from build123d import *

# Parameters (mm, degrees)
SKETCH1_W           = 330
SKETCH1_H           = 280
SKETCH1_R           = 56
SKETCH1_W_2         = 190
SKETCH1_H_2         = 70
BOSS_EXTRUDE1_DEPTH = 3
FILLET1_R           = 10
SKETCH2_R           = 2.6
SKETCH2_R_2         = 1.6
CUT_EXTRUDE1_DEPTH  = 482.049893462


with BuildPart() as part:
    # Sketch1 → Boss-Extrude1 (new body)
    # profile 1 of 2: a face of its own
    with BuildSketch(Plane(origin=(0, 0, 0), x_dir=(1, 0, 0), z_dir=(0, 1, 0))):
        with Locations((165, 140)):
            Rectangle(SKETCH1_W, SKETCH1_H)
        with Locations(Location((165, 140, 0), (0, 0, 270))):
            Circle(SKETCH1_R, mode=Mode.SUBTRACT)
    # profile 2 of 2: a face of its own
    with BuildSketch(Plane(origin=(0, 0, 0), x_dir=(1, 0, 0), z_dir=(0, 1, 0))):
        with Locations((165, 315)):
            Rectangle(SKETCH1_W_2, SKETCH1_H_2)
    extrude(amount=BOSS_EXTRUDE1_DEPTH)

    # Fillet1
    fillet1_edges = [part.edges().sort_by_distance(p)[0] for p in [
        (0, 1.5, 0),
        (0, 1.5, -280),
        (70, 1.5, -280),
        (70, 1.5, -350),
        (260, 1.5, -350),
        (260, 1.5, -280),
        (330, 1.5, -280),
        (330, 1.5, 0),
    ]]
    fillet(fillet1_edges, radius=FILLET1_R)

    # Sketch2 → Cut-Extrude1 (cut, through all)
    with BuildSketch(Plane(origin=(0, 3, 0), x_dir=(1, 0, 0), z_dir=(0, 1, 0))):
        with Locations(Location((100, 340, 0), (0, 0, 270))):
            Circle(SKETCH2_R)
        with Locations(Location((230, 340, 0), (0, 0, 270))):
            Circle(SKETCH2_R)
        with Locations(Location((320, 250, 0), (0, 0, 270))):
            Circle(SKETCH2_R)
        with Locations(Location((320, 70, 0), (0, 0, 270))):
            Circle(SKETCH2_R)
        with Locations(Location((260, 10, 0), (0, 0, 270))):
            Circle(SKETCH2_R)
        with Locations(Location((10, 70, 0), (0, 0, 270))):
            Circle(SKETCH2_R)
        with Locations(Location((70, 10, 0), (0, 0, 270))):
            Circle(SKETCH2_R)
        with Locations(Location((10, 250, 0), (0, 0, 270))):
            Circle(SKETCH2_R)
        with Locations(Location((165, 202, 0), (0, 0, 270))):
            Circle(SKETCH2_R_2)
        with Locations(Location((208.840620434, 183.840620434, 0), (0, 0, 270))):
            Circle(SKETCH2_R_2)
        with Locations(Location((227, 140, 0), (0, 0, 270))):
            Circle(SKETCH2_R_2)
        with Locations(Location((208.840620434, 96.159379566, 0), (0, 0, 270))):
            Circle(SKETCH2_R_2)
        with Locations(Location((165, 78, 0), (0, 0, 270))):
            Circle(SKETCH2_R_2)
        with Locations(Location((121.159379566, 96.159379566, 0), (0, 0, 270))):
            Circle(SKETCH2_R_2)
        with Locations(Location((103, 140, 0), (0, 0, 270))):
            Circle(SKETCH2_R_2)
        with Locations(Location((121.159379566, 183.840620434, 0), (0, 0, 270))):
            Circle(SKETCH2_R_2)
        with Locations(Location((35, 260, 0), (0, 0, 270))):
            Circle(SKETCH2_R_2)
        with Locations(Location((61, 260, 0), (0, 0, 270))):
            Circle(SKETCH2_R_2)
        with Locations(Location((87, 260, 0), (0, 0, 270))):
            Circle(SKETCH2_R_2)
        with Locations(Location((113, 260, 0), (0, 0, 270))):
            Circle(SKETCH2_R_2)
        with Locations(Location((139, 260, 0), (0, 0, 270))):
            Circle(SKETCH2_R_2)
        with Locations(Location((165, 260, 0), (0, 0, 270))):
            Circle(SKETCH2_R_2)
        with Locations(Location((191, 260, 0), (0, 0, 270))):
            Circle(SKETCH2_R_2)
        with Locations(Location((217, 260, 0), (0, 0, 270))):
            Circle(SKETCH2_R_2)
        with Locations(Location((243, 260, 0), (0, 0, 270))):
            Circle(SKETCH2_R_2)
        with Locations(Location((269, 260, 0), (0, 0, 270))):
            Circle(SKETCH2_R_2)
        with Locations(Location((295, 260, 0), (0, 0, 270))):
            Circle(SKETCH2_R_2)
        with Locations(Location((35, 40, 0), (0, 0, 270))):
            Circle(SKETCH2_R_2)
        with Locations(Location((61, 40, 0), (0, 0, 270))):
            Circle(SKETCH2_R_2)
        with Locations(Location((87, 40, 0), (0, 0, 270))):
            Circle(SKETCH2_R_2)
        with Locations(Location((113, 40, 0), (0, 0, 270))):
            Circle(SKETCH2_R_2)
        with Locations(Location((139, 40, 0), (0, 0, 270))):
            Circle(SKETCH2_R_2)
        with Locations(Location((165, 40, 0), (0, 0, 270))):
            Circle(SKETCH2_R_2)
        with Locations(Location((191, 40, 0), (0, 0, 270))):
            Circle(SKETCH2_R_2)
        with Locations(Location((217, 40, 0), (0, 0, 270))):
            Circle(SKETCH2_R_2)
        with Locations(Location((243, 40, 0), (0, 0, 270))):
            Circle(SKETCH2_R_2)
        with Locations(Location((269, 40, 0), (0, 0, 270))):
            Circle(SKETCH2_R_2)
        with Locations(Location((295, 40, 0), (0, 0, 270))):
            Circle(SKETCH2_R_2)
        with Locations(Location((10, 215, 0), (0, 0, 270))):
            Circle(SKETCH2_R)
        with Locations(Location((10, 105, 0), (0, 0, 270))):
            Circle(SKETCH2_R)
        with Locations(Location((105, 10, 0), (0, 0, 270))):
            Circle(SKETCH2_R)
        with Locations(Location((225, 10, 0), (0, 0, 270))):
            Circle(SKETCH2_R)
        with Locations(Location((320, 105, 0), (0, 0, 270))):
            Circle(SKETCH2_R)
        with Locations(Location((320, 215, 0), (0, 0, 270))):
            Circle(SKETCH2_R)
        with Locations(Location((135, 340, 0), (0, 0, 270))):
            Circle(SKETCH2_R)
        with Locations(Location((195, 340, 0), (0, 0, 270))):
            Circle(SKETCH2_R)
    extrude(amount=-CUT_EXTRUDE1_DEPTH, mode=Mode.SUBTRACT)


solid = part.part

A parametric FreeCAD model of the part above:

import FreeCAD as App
import Part
import Sketcher
from FreeCAD import Vector
Q = App.Units.Quantity


def edges_at(feature, points):
    """Names of the edges that pass closest to the given points."""
    edges = feature.Shape.Edges
    near = lambda p: min(range(len(edges)), key=lambda i: edges[i].distToShape(Part.Vertex(*p))[0])
    return sorted({f"Edge{near(p) + 1}" for p in points})

doc = App.newDocument("Part")
params = doc.addObject("Spreadsheet::Sheet", "Params")
for row, (alias, value) in enumerate([
    ("sketch1_diameter", "112 mm"),
    ("sketch1_width", "330 mm"),
    ("sketch1_width2", "70 mm"),
    ("sketch1_height", "280 mm"),
    ("pad1_length", "3 mm"),
    ("fillet_radius", "10 mm"),
    ("sketch2_diameter", "5.2 mm"),
    ("sketch2_diameter2", "3.2 mm"),
], start=1):
    params.set(f"A{row}", alias)
    params.set(f"B{row}", "=" + value)
    params.setAlias(f"B{row}", alias)

body = doc.addObject("PartDesign::Body", "Body")

# Sketch on XZ plane
sketch1 = body.newObject("Sketcher::SketchObject", "Sketch")
sketch1.AttachmentSupport = (doc.getObject("XZ_Plane"), [""])
sketch1.MapMode = "FlatFace"
sketch1.addGeometry([
    Part.LineSegment(Vector(0, -280, 0), Vector(0, 0, 0)),  # 0
    Part.LineSegment(Vector(0, 0, 0), Vector(330, 0, 0)),  # 1
    Part.LineSegment(Vector(330, 0, 0), Vector(330, -280, 0)),  # 2
    Part.LineSegment(Vector(330, -280, 0), Vector(260, -280, 0)),  # 3
    Part.LineSegment(Vector(260, -280, 0), Vector(260, -350, 0)),  # 4
    Part.LineSegment(Vector(260, -350, 0), Vector(70, -350, 0)),  # 5
    Part.LineSegment(Vector(70, -350, 0), Vector(70, -280, 0)),  # 6
    Part.LineSegment(Vector(70, -280, 0), Vector(0, -280, 0)),  # 7
    Part.Circle(Vector(165, -140, 0), Vector(0, 0, 1), 56),  # 8
], False)
sketch1.addConstraint([
    Sketcher.Constraint("Coincident", 0, 2, 1, 1),
    Sketcher.Constraint("Coincident", 1, 2, 2, 1),
    Sketcher.Constraint("Coincident", 2, 2, 3, 1),
    Sketcher.Constraint("Coincident", 3, 2, 4, 1),
    Sketcher.Constraint("Coincident", 4, 2, 5, 1),
    Sketcher.Constraint("Coincident", 5, 2, 6, 1),
    Sketcher.Constraint("Coincident", 6, 2, 7, 1),
    Sketcher.Constraint("Coincident", 7, 2, 0, 1),
    Sketcher.Constraint("Vertical", 0),
    Sketcher.Constraint("Horizontal", 1),
    Sketcher.Constraint("Vertical", 2),
    Sketcher.Constraint("Horizontal", 3),
    Sketcher.Constraint("Vertical", 4),
    Sketcher.Constraint("Horizontal", 5),
    Sketcher.Constraint("Vertical", 6),
    Sketcher.Constraint("Horizontal", 7),
    Sketcher.Constraint("Coincident", 0, 2, -1, 1),
    Sketcher.Constraint("Horizontal", 3, 2, 6, 2),
    Sketcher.Constraint("Equal", 3, 7),
    Sketcher.Constraint("Equal", 7, 4),
    Sketcher.Constraint("Diameter", 8, Q("112 mm")),
    Sketcher.Constraint("DistanceX", 1, 1, 1, 2, Q("330 mm")),
    Sketcher.Constraint("DistanceX", 3, 2, 3, 1, Q("70 mm")),
    Sketcher.Constraint("DistanceY", 0, 1, 0, 2, Q("280 mm")),
    Sketcher.Constraint("DistanceX", -1, 1, 8, 3, Q("165 mm")),
    Sketcher.Constraint("DistanceY", 8, 3, -1, 1, Q("140 mm")),
])
sketch1.setExpression("Constraints[20]", "Params.sketch1_diameter")
sketch1.setExpression("Constraints[21]", "Params.sketch1_width")
sketch1.setExpression("Constraints[22]", "Params.sketch1_width2")
sketch1.setExpression("Constraints[23]", "Params.sketch1_height")
pad1 = body.newObject("PartDesign::Pad", "Pad")
pad1.Profile = sketch1
pad1.setExpression("Length", "Params.pad1_length")
pad1.Reversed = True
doc.recompute()

fillet = body.newObject("PartDesign::Fillet", "Fillet")
fillet.Base = (pad1, edges_at(pad1, [
    (0, 1.5, 0),
    (0, 1.5, -280),
    (70, 1.5, -280),
    (70, 1.5, -350),
    (260, 1.5, -350),
    (260, 1.5, -280),
    (330, 1.5, -280),
    (330, 1.5, 0),
]))
fillet.setExpression("Radius", "Params.fillet_radius")

# Sketch on XZ plane
sketch2 = body.newObject("Sketcher::SketchObject", "Sketch001")
sketch2.AttachmentSupport = (doc.getObject("XZ_Plane"), [""])
sketch2.MapMode = "FlatFace"
sketch2.AttachmentOffset = App.Placement(Vector(0, 0, -3), App.Rotation())
sketch2.addGeometry([
    Part.Circle(Vector(100, -340, 0), Vector(0, 0, 1), 2.6),  # 0
    Part.Circle(Vector(230, -340, 0), Vector(0, 0, 1), 2.6),  # 1
    Part.Circle(Vector(320, -250, 0), Vector(0, 0, 1), 2.6),  # 2
    Part.Circle(Vector(320, -70, 0), Vector(0, 0, 1), 2.6),  # 3
    Part.Circle(Vector(260, -10, 0), Vector(0, 0, 1), 2.6),  # 4
    Part.Circle(Vector(10, -70, 0), Vector(0, 0, 1), 2.6),  # 5
    Part.Circle(Vector(70, -10, 0), Vector(0, 0, 1), 2.6),  # 6
    Part.Circle(Vector(10, -250, 0), Vector(0, 0, 1), 2.6),  # 7
    Part.Circle(Vector(165, -202, 0), Vector(0, 0, 1), 1.6),  # 8
    Part.Circle(Vector(208.8, -183.8, 0), Vector(0, 0, 1), 1.6),  # 9
    Part.Circle(Vector(227, -140, 0), Vector(0, 0, 1), 1.6),  # 10
    Part.Circle(Vector(208.8, -96.2, 0), Vector(0, 0, 1), 1.6),  # 11
    Part.Circle(Vector(165, -78, 0), Vector(0, 0, 1), 1.6),  # 12
    Part.Circle(Vector(121.2, -96.2, 0), Vector(0, 0, 1), 1.6),  # 13
    Part.Circle(Vector(103, -140, 0), Vector(0, 0, 1), 1.6),  # 14
    Part.Circle(Vector(121.2, -183.8, 0), Vector(0, 0, 1), 1.6),  # 15
    Part.Circle(Vector(35, -260, 0), Vector(0, 0, 1), 1.6),  # 16
    Part.Circle(Vector(61, -260, 0), Vector(0, 0, 1), 1.6),  # 17
    Part.Circle(Vector(87, -260, 0), Vector(0, 0, 1), 1.6),  # 18
    Part.Circle(Vector(113, -260, 0), Vector(0, 0, 1), 1.6),  # 19
    Part.Circle(Vector(139, -260, 0), Vector(0, 0, 1), 1.6),  # 20
    Part.Circle(Vector(165, -260, 0), Vector(0, 0, 1), 1.6),  # 21
    Part.Circle(Vector(191, -260, 0), Vector(0, 0, 1), 1.6),  # 22
    Part.Circle(Vector(217, -260, 0), Vector(0, 0, 1), 1.6),  # 23
    Part.Circle(Vector(243, -260, 0), Vector(0, 0, 1), 1.6),  # 24
    Part.Circle(Vector(269, -260, 0), Vector(0, 0, 1), 1.6),  # 25
    Part.Circle(Vector(295, -260, 0), Vector(0, 0, 1), 1.6),  # 26
    Part.Circle(Vector(35, -40, 0), Vector(0, 0, 1), 1.6),  # 27
    Part.Circle(Vector(61, -40, 0), Vector(0, 0, 1), 1.6),  # 28
    Part.Circle(Vector(87, -40, 0), Vector(0, 0, 1), 1.6),  # 29
    Part.Circle(Vector(113, -40, 0), Vector(0, 0, 1), 1.6),  # 30
    Part.Circle(Vector(139, -40, 0), Vector(0, 0, 1), 1.6),  # 31
    Part.Circle(Vector(165, -40, 0), Vector(0, 0, 1), 1.6),  # 32
    Part.Circle(Vector(191, -40, 0), Vector(0, 0, 1), 1.6),  # 33
    Part.Circle(Vector(217, -40, 0), Vector(0, 0, 1), 1.6),  # 34
    Part.Circle(Vector(243, -40, 0), Vector(0, 0, 1), 1.6),  # 35
    Part.Circle(Vector(269, -40, 0), Vector(0, 0, 1), 1.6),  # 36
    Part.Circle(Vector(295, -40, 0), Vector(0, 0, 1), 1.6),  # 37
    Part.Circle(Vector(10, -215, 0), Vector(0, 0, 1), 2.6),  # 38
    Part.Circle(Vector(10, -105, 0), Vector(0, 0, 1), 2.6),  # 39
    Part.Circle(Vector(105, -10, 0), Vector(0, 0, 1), 2.6),  # 40
    Part.Circle(Vector(225, -10, 0), Vector(0, 0, 1), 2.6),  # 41
    Part.Circle(Vector(320, -105, 0), Vector(0, 0, 1), 2.6),  # 42
    Part.Circle(Vector(320, -215, 0), Vector(0, 0, 1), 2.6),  # 43
    Part.Circle(Vector(135, -340, 0), Vector(0, 0, 1), 2.6),  # 44
    Part.Circle(Vector(195, -340, 0), Vector(0, 0, 1), 2.6),  # 45
], False)
sketch2.addConstraint([
    Sketcher.Constraint("Equal", 0, 1),
    Sketcher.Constraint("Equal", 1, 2),
    Sketcher.Constraint("Equal", 2, 3),
    Sketcher.Constraint("Equal", 3, 4),
    Sketcher.Constraint("Equal", 4, 5),
    Sketcher.Constraint("Equal", 5, 6),
    Sketcher.Constraint("Equal", 6, 7),
    Sketcher.Constraint("Equal", 8, 9),
    Sketcher.Constraint("Equal", 9, 10),
    Sketcher.Constraint("Equal", 10, 11),
    Sketcher.Constraint("Equal", 11, 12),
    Sketcher.Constraint("Equal", 12, 13),
    Sketcher.Constraint("Equal", 13, 14),
    Sketcher.Constraint("Equal", 14, 15),
    Sketcher.Constraint("Equal", 15, 16),
    Sketcher.Constraint("Equal", 16, 17),
    Sketcher.Constraint("Equal", 17, 18),
    Sketcher.Constraint("Equal", 18, 19),
    Sketcher.Constraint("Equal", 19, 20),
    Sketcher.Constraint("Equal", 20, 21),
    Sketcher.Constraint("Equal", 21, 22),
    Sketcher.Constraint("Equal", 22, 23),
    Sketcher.Constraint("Equal", 23, 24),
    Sketcher.Constraint("Equal", 24, 25),
    Sketcher.Constraint("Equal", 25, 26),
    Sketcher.Constraint("Equal", 26, 27),
    Sketcher.Constraint("Equal", 27, 28),
    Sketcher.Constraint("Equal", 28, 29),
    Sketcher.Constraint("Equal", 29, 30),
    Sketcher.Constraint("Equal", 30, 31),
    Sketcher.Constraint("Equal", 31, 32),
    Sketcher.Constraint("Equal", 32, 33),
    Sketcher.Constraint("Equal", 33, 34),
    Sketcher.Constraint("Equal", 34, 35),
    Sketcher.Constraint("Equal", 35, 36),
    Sketcher.Constraint("Equal", 36, 37),
    Sketcher.Constraint("Equal", 7, 38),
    Sketcher.Constraint("Equal", 38, 39),
    Sketcher.Constraint("Equal", 39, 40),
    Sketcher.Constraint("Equal", 40, 41),
    Sketcher.Constraint("Equal", 41, 42),
    Sketcher.Constraint("Equal", 42, 43),
    Sketcher.Constraint("Equal", 43, 44),
    Sketcher.Constraint("Equal", 44, 45),
    Sketcher.Constraint("Horizontal", 0, 3, 1, 3),
    Sketcher.Constraint("Horizontal", 3, 3, 5, 3),
    Sketcher.Constraint("Horizontal", 4, 3, 6, 3),
    Sketcher.Constraint("Horizontal", 2, 3, 7, 3),
    Sketcher.Constraint("Horizontal", 11, 3, 13, 3),
    Sketcher.Constraint("Horizontal", 10, 3, 14, 3),
    Sketcher.Constraint("Horizontal", 9, 3, 15, 3),
    Sketcher.Constraint("Horizontal", 16, 3, 17, 3),
    Sketcher.Constraint("Horizontal", 17, 3, 18, 3),
    Sketcher.Constraint("Horizontal", 18, 3, 19, 3),
    Sketcher.Constraint("Horizontal", 19, 3, 20, 3),
    Sketcher.Constraint("Horizontal", 20, 3, 21, 3),
    Sketcher.Constraint("Horizontal", 21, 3, 22, 3),
    Sketcher.Constraint("Horizontal", 22, 3, 23, 3),
    Sketcher.Constraint("Horizontal", 23, 3, 24, 3),
    Sketcher.Constraint("Horizontal", 24, 3, 25, 3),
    Sketcher.Constraint("Horizontal", 25, 3, 26, 3),
    Sketcher.Constraint("Horizontal", 27, 3, 28, 3),
    Sketcher.Constraint("Horizontal", 28, 3, 29, 3),
    Sketcher.Constraint("Horizontal", 29, 3, 30, 3),
    Sketcher.Constraint("Horizontal", 30, 3, 31, 3),
    Sketcher.Constraint("Horizontal", 31, 3, 32, 3),
    Sketcher.Constraint("Horizontal", 32, 3, 33, 3),
    Sketcher.Constraint("Horizontal", 33, 3, 34, 3),
    Sketcher.Constraint("Horizontal", 34, 3, 35, 3),
    Sketcher.Constraint("Horizontal", 35, 3, 36, 3),
    Sketcher.Constraint("Horizontal", 36, 3, 37, 3),
    Sketcher.Constraint("Horizontal", 6, 3, 40, 3),
    Sketcher.Constraint("Horizontal", 40, 3, 41, 3),
    Sketcher.Constraint("Horizontal", 39, 3, 42, 3),
    Sketcher.Constraint("Horizontal", 38, 3, 43, 3),
    Sketcher.Constraint("Horizontal", 1, 3, 44, 3),
    Sketcher.Constraint("Horizontal", 44, 3, 45, 3),
    Sketcher.Constraint("Vertical", 2, 3, 3, 3),
    Sketcher.Constraint("Vertical", 5, 3, 7, 3),
    Sketcher.Constraint("Vertical", 9, 3, 11, 3),
    Sketcher.Constraint("Vertical", 8, 3, 12, 3),
    Sketcher.Constraint("Vertical", 13, 3, 15, 3),
    Sketcher.Constraint("Vertical", 12, 3, 21, 3),
    Sketcher.Constraint("Vertical", 16, 3, 27, 3),
    Sketcher.Constraint("Vertical", 17, 3, 28, 3),
    Sketcher.Constraint("Vertical", 18, 3, 29, 3),
    Sketcher.Constraint("Vertical", 19, 3, 30, 3),
    Sketcher.Constraint("Vertical", 20, 3, 31, 3),
    Sketcher.Constraint("Vertical", 21, 3, 32, 3),
    Sketcher.Constraint("Vertical", 22, 3, 33, 3),
    Sketcher.Constraint("Vertical", 23, 3, 34, 3),
    Sketcher.Constraint("Vertical", 24, 3, 35, 3),
    Sketcher.Constraint("Vertical", 25, 3, 36, 3),
    Sketcher.Constraint("Vertical", 26, 3, 37, 3),
    Sketcher.Constraint("Vertical", 7, 3, 38, 3),
    Sketcher.Constraint("Vertical", 38, 3, 39, 3),
    Sketcher.Constraint("Vertical", 3, 3, 42, 3),
    Sketcher.Constraint("Vertical", 42, 3, 43, 3),
    Sketcher.Constraint("Diameter", 0, Q("5.2 mm")),
    Sketcher.Constraint("Diameter", 8, Q("3.2 mm")),
    Sketcher.Constraint("DistanceX", -1, 1, 0, 3, Q("100 mm")),
    Sketcher.Constraint("DistanceY", 0, 3, -1, 1, Q("340 mm")),
    Sketcher.Constraint("DistanceX", -1, 1, 1, 3, Q("230 mm")),
    Sketcher.Constraint("DistanceX", -1, 1, 2, 3, Q("320 mm")),
    Sketcher.Constraint("DistanceY", 2, 3, -1, 1, Q("250 mm")),
    Sketcher.Constraint("DistanceY", 3, 3, -1, 1, Q("70 mm")),
    Sketcher.Constraint("DistanceX", -1, 1, 4, 3, Q("260 mm")),
    Sketcher.Constraint("DistanceY", 4, 3, -1, 1, Q("10 mm")),
    Sketcher.Constraint("DistanceX", -1, 1, 5, 3, Q("10 mm")),
    Sketcher.Constraint("DistanceX", -1, 1, 6, 3, Q("70 mm")),
    Sketcher.Constraint("DistanceX", -1, 1, 8, 3, Q("165 mm")),
    Sketcher.Constraint("DistanceY", 8, 3, -1, 1, Q("202 mm")),
    Sketcher.Constraint("DistanceX", -1, 1, 10, 3, Q("227 mm")),
    Sketcher.Constraint("DistanceY", 10, 3, -1, 1, Q("140 mm")),
    Sketcher.Constraint("DistanceY", 12, 3, -1, 1, Q("78 mm")),
    Sketcher.Constraint("DistanceX", -1, 1, 14, 3, Q("103 mm")),
    Sketcher.Constraint("DistanceX", -1, 1, 16, 3, Q("35 mm")),
    Sketcher.Constraint("DistanceY", 16, 3, -1, 1, Q("260 mm")),
    Sketcher.Constraint("DistanceX", -1, 1, 17, 3, Q("61 mm")),
    Sketcher.Constraint("DistanceX", -1, 1, 18, 3, Q("87 mm")),
    Sketcher.Constraint("DistanceX", -1, 1, 19, 3, Q("113 mm")),
    Sketcher.Constraint("DistanceX", -1, 1, 20, 3, Q("139 mm")),
    Sketcher.Constraint("DistanceX", -1, 1, 22, 3, Q("191 mm")),
    Sketcher.Constraint("DistanceX", -1, 1, 23, 3, Q("217 mm")),
    Sketcher.Constraint("DistanceX", -1, 1, 24, 3, Q("243 mm")),
    Sketcher.Constraint("DistanceX", -1, 1, 25, 3, Q("269 mm")),
    Sketcher.Constraint("DistanceX", -1, 1, 26, 3, Q("295 mm")),
    Sketcher.Constraint("DistanceY", 27, 3, -1, 1, Q("40 mm")),
    Sketcher.Constraint("DistanceY", 38, 3, -1, 1, Q("215 mm")),
    Sketcher.Constraint("DistanceY", 39, 3, -1, 1, Q("105 mm")),
    Sketcher.Constraint("DistanceX", -1, 1, 40, 3, Q("105 mm")),
    Sketcher.Constraint("DistanceX", -1, 1, 41, 3, Q("225 mm")),
    Sketcher.Constraint("DistanceX", -1, 1, 44, 3, Q("135 mm")),
    Sketcher.Constraint("DistanceX", -1, 1, 45, 3, Q("195 mm")),
    Sketcher.Constraint("DistanceX", -1, 1, 9, 3, Q("208.84062 mm")),
    Sketcher.Constraint("DistanceY", 9, 3, -1, 1, Q("183.84062 mm")),
    Sketcher.Constraint("DistanceY", 11, 3, -1, 1, Q("96.15938 mm")),
    Sketcher.Constraint("DistanceX", -1, 1, 13, 3, Q("121.15938 mm")),
])
sketch2.setExpression("Constraints[98]", "Params.sketch2_diameter")
sketch2.setExpression("Constraints[99]", "Params.sketch2_diameter2")
pocket1 = body.newObject("PartDesign::Pocket", "Pocket")
pocket1.Profile = sketch2
pocket1.Type = "ThroughAll"
pocket1.Reversed = True

doc.recompute()
